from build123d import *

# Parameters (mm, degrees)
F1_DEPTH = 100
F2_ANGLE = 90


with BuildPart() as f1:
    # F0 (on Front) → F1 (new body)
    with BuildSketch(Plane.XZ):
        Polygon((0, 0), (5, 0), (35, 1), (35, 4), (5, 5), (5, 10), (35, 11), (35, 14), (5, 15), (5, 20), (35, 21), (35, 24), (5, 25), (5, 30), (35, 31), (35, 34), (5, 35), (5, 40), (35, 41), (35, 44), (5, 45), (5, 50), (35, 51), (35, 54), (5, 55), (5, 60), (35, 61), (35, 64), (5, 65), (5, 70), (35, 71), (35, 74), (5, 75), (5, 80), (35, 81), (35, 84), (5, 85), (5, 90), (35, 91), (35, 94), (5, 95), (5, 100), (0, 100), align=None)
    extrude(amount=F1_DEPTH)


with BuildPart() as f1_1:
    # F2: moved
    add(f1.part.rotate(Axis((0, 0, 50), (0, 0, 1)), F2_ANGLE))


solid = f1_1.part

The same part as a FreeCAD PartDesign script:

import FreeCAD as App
import Part
import Sketcher


def add_polygon(sketch, points):
    """Adds a closed chain of lines whose ends are joined by coincident constraints."""
    first, n = sketch.GeometryCount, len(points)
    for a, b in zip(points, points[1:] + points[:1]):
        sketch.addGeometry(Part.LineSegment(App.Vector(*a, 0), App.Vector(*b, 0)), False)
    for i in range(n):
        sketch.addConstraint(Sketcher.Constraint("Coincident", first + i, 2, first + (i + 1) % n, 1))

doc = App.newDocument("Part")
body = doc.addObject("PartDesign::Body", "Body")

sketch1 = body.newObject("Sketcher::SketchObject", "Sketch")
sketch1.AttachmentSupport = (doc.getObject("XZ_Plane"), [""])
sketch1.MapMode = "FlatFace"
add_polygon(sketch1, [(0, 0), (5, 0), (35, 1), (35, 4), (5, 5), (5, 10), (35, 11), (35, 14), (5, 15), (5, 20), (35, 21), (35, 24), (5, 25), (5, 30), (35, 31), (35, 34), (5, 35), (5, 40), (35, 41), (35, 44), (5, 45), (5, 50), (35, 51), (35, 54), (5, 55), (5, 60), (35, 61), (35, 64), (5, 65), (5, 70), (35, 71), (35, 74), (5, 75), (5, 80), (35, 81), (35, 84), (5, 85), (5, 90), (35, 91), (35, 94), (5, 95), (5, 100), (0, 100)])
sketch1.addConstraint(Sketcher.Constraint("Horizontal", 0))
sketch1.addConstraint(Sketcher.Constraint("Vertical", 2))
sketch1.addConstraint(Sketcher.Constraint("Vertical", 4))
sketch1.addConstraint(Sketcher.Constraint("Vertical", 6))
sketch1.addConstraint(Sketcher.Constraint("Vertical", 8))
sketch1.addConstraint(Sketcher.Constraint("Vertical", 10))
sketch1.addConstraint(Sketcher.Constraint("Vertical", 12))
sketch1.addConstraint(Sketcher.Constraint("Vertical", 14))
sketch1.addConstraint(Sketcher.Constraint("Vertical", 16))
sketch1.addConstraint(Sketcher.Constraint("Vertical", 18))
sketch1.addConstraint(Sketcher.Constraint("Vertical", 20))
sketch1.addConstraint(Sketcher.Constraint("Vertical", 22))
sketch1.addConstraint(Sketcher.Constraint("Vertical", 24))
sketch1.addConstraint(Sketcher.Constraint("Vertical", 26))
sketch1.addConstraint(Sketcher.Constraint("Vertical", 28))
sketch1.addConstraint(Sketcher.Constraint("Vertical", 30))
sketch1.addConstraint(Sketcher.Constraint("Vertical", 32))
sketch1.addConstraint(Sketcher.Constraint("Vertical", 34))
sketch1.addConstraint(Sketcher.Constraint("Vertical", 36))
sketch1.addConstraint(Sketcher.Constraint("Vertical", 38))
sketch1.addConstraint(Sketcher.Constraint("Vertical", 40))
sketch1.addConstraint(Sketcher.Constraint("Horizontal", 41))
sketch1.addConstraint(Sketcher.Constraint("Vertical", 42))
sketch1.addConstraint(Sketcher.Constraint("Coincident", 42, 2, -1, 1))
sketch1.addConstraint(Sketcher.Constraint("Parallel", 1, 5))
sketch1.addConstraint(Sketcher.Constraint("Parallel", 3, 7))
sketch1.addConstraint(Sketcher.Constraint("Parallel", 5, 9))
sketch1.addConstraint(Sketcher.Constraint("Parallel", 7, 11))
sketch1.addConstraint(Sketcher.Constraint("Parallel", 9, 13))
sketch1.addConstraint(Sketcher.Constraint("Parallel", 11, 15))
sketch1.addConstraint(Sketcher.Constraint("Parallel", 13, 17))
sketch1.addConstraint(Sketcher.Constraint("Parallel", 15, 19))
sketch1.addConstraint(Sketcher.Constraint("Parallel", 17, 21))
sketch1.addConstraint(Sketcher.Constraint("Parallel", 19, 23))
sketch1.addConstraint(Sketcher.Constraint("Parallel", 21, 25))
sketch1.addConstraint(Sketcher.Constraint("Parallel", 23, 27))
sketch1.addConstraint(Sketcher.Constraint("Parallel", 25, 29))
sketch1.addConstraint(Sketcher.Constraint("Parallel", 27, 31))
sketch1.addConstraint(Sketcher.Constraint("Parallel", 29, 33))
sketch1.addConstraint(Sketcher.Constraint("Parallel", 31, 35))
sketch1.addConstraint(Sketcher.Constraint("Parallel", 33, 37))
sketch1.addConstraint(Sketcher.Constraint("Parallel", 35, 39))
sketch1.addConstraint(Sketcher.Constraint("Vertical", 0, 2, 3, 2))
sketch1.addConstraint(Sketcher.Constraint("Vertical", 2, 2, 5, 2))
sketch1.addConstraint(Sketcher.Constraint("Vertical", 4, 2, 7, 2))
sketch1.addConstraint(Sketcher.Constraint("Vertical", 6, 2, 9, 2))
sketch1.addConstraint(Sketcher.Constraint("Vertical", 8, 2, 11, 2))
sketch1.addConstraint(Sketcher.Constraint("Vertical", 10, 2, 13, 2))
sketch1.addConstraint(Sketcher.Constraint("Vertical", 12, 2, 15, 2))
sketch1.addConstraint(Sketcher.Constraint("Vertical", 14, 2, 17, 2))
sketch1.addConstraint(Sketcher.Constraint("Vertical", 16, 2, 19, 2))
sketch1.addConstraint(Sketcher.Constraint("Vertical", 18, 2, 21, 2))
sketch1.addConstraint(Sketcher.Constraint("Vertical", 20, 2, 23, 2))
sketch1.addConstraint(Sketcher.Constraint("Vertical", 22, 2, 25, 2))
sketch1.addConstraint(Sketcher.Constraint("Vertical", 24, 2, 27, 2))
sketch1.addConstraint(Sketcher.Constraint("Vertical", 26, 2, 29, 2))
sketch1.addConstraint(Sketcher.Constraint("Vertical", 28, 2, 31, 2))
sketch1.addConstraint(Sketcher.Constraint("Vertical", 30, 2, 33, 2))
sketch1.addConstraint(Sketcher.Constraint("Vertical", 32, 2, 35, 2))
sketch1.addConstraint(Sketcher.Constraint("Vertical", 34, 2, 37, 2))
sketch1.addConstraint(Sketcher.Constraint("Vertical", 36, 2, 39, 2))
sketch1.addConstraint(Sketcher.Constraint("Equal", 41, 4))
sketch1.addConstraint(Sketcher.Constraint("Equal", 2, 6))
sketch1.addConstraint(Sketcher.Constraint("Equal", 4, 8))
sketch1.addConstraint(Sketcher.Constraint("Equal", 6, 10))
sketch1.addConstraint(Sketcher.Constraint("Equal", 8, 12))
sketch1.addConstraint(Sketcher.Constraint("Equal", 10, 14))
sketch1.addConstraint(Sketcher.Constraint("Equal", 12, 16))
sketch1.addConstraint(Sketcher.Constraint("Equal", 14, 18))
sketch1.addConstraint(Sketcher.Constraint("Equal", 16, 20))
sketch1.addConstraint(Sketcher.Constraint("Equal", 18, 22))
sketch1.addConstraint(Sketcher.Constraint("Equal", 20, 24))
sketch1.addConstraint(Sketcher.Constraint("Equal", 22, 26))
sketch1.addConstraint(Sketcher.Constraint("Equal", 24, 28))
sketch1.addConstraint(Sketcher.Constraint("Equal", 26, 30))
sketch1.addConstraint(Sketcher.Constraint("Equal", 28, 32))
sketch1.addConstraint(Sketcher.Constraint("Equal", 30, 34))
sketch1.addConstraint(Sketcher.Constraint("Equal", 32, 36))
sketch1.addConstraint(Sketcher.Constraint("Equal", 34, 38))
sketch1.addConstraint(Sketcher.Constraint("Equal", 36, 40))
sketch1.addConstraint(Sketcher.Constraint("Equal", 1, 3))
sketch1.addConstraint(Sketcher.Constraint("DistanceX", 0, 1, 0, 2, 5.0))
sketch1.addConstraint(Sketcher.Constraint("DistanceY", 2, 1, 2, 2, 3.0))
sketch1.addConstraint(Sketcher.Constraint("DistanceY", 42, 2, 42, 1, 100.0))
sketch1.addConstraint(Sketcher.Constraint("DistanceX", -1, 1, 1, 2, 35.0))
pad1 = body.newObject("PartDesign::Pad", "Pad")
pad1.Profile = sketch1
pad1.Length = 100
body2 = doc.addObject("PartDesign::Body", "Body001")
doc.recompute()

body.Placement = App.Placement(App.Vector(0, 0, 0), App.Rotation(App.Vector(0, 0, 1), 90))
boolean = body2.newObject("PartDesign::Boolean", "Boolean")
boolean.Type = "Fuse"
boolean.addObjects([body])

doc.recompute()
